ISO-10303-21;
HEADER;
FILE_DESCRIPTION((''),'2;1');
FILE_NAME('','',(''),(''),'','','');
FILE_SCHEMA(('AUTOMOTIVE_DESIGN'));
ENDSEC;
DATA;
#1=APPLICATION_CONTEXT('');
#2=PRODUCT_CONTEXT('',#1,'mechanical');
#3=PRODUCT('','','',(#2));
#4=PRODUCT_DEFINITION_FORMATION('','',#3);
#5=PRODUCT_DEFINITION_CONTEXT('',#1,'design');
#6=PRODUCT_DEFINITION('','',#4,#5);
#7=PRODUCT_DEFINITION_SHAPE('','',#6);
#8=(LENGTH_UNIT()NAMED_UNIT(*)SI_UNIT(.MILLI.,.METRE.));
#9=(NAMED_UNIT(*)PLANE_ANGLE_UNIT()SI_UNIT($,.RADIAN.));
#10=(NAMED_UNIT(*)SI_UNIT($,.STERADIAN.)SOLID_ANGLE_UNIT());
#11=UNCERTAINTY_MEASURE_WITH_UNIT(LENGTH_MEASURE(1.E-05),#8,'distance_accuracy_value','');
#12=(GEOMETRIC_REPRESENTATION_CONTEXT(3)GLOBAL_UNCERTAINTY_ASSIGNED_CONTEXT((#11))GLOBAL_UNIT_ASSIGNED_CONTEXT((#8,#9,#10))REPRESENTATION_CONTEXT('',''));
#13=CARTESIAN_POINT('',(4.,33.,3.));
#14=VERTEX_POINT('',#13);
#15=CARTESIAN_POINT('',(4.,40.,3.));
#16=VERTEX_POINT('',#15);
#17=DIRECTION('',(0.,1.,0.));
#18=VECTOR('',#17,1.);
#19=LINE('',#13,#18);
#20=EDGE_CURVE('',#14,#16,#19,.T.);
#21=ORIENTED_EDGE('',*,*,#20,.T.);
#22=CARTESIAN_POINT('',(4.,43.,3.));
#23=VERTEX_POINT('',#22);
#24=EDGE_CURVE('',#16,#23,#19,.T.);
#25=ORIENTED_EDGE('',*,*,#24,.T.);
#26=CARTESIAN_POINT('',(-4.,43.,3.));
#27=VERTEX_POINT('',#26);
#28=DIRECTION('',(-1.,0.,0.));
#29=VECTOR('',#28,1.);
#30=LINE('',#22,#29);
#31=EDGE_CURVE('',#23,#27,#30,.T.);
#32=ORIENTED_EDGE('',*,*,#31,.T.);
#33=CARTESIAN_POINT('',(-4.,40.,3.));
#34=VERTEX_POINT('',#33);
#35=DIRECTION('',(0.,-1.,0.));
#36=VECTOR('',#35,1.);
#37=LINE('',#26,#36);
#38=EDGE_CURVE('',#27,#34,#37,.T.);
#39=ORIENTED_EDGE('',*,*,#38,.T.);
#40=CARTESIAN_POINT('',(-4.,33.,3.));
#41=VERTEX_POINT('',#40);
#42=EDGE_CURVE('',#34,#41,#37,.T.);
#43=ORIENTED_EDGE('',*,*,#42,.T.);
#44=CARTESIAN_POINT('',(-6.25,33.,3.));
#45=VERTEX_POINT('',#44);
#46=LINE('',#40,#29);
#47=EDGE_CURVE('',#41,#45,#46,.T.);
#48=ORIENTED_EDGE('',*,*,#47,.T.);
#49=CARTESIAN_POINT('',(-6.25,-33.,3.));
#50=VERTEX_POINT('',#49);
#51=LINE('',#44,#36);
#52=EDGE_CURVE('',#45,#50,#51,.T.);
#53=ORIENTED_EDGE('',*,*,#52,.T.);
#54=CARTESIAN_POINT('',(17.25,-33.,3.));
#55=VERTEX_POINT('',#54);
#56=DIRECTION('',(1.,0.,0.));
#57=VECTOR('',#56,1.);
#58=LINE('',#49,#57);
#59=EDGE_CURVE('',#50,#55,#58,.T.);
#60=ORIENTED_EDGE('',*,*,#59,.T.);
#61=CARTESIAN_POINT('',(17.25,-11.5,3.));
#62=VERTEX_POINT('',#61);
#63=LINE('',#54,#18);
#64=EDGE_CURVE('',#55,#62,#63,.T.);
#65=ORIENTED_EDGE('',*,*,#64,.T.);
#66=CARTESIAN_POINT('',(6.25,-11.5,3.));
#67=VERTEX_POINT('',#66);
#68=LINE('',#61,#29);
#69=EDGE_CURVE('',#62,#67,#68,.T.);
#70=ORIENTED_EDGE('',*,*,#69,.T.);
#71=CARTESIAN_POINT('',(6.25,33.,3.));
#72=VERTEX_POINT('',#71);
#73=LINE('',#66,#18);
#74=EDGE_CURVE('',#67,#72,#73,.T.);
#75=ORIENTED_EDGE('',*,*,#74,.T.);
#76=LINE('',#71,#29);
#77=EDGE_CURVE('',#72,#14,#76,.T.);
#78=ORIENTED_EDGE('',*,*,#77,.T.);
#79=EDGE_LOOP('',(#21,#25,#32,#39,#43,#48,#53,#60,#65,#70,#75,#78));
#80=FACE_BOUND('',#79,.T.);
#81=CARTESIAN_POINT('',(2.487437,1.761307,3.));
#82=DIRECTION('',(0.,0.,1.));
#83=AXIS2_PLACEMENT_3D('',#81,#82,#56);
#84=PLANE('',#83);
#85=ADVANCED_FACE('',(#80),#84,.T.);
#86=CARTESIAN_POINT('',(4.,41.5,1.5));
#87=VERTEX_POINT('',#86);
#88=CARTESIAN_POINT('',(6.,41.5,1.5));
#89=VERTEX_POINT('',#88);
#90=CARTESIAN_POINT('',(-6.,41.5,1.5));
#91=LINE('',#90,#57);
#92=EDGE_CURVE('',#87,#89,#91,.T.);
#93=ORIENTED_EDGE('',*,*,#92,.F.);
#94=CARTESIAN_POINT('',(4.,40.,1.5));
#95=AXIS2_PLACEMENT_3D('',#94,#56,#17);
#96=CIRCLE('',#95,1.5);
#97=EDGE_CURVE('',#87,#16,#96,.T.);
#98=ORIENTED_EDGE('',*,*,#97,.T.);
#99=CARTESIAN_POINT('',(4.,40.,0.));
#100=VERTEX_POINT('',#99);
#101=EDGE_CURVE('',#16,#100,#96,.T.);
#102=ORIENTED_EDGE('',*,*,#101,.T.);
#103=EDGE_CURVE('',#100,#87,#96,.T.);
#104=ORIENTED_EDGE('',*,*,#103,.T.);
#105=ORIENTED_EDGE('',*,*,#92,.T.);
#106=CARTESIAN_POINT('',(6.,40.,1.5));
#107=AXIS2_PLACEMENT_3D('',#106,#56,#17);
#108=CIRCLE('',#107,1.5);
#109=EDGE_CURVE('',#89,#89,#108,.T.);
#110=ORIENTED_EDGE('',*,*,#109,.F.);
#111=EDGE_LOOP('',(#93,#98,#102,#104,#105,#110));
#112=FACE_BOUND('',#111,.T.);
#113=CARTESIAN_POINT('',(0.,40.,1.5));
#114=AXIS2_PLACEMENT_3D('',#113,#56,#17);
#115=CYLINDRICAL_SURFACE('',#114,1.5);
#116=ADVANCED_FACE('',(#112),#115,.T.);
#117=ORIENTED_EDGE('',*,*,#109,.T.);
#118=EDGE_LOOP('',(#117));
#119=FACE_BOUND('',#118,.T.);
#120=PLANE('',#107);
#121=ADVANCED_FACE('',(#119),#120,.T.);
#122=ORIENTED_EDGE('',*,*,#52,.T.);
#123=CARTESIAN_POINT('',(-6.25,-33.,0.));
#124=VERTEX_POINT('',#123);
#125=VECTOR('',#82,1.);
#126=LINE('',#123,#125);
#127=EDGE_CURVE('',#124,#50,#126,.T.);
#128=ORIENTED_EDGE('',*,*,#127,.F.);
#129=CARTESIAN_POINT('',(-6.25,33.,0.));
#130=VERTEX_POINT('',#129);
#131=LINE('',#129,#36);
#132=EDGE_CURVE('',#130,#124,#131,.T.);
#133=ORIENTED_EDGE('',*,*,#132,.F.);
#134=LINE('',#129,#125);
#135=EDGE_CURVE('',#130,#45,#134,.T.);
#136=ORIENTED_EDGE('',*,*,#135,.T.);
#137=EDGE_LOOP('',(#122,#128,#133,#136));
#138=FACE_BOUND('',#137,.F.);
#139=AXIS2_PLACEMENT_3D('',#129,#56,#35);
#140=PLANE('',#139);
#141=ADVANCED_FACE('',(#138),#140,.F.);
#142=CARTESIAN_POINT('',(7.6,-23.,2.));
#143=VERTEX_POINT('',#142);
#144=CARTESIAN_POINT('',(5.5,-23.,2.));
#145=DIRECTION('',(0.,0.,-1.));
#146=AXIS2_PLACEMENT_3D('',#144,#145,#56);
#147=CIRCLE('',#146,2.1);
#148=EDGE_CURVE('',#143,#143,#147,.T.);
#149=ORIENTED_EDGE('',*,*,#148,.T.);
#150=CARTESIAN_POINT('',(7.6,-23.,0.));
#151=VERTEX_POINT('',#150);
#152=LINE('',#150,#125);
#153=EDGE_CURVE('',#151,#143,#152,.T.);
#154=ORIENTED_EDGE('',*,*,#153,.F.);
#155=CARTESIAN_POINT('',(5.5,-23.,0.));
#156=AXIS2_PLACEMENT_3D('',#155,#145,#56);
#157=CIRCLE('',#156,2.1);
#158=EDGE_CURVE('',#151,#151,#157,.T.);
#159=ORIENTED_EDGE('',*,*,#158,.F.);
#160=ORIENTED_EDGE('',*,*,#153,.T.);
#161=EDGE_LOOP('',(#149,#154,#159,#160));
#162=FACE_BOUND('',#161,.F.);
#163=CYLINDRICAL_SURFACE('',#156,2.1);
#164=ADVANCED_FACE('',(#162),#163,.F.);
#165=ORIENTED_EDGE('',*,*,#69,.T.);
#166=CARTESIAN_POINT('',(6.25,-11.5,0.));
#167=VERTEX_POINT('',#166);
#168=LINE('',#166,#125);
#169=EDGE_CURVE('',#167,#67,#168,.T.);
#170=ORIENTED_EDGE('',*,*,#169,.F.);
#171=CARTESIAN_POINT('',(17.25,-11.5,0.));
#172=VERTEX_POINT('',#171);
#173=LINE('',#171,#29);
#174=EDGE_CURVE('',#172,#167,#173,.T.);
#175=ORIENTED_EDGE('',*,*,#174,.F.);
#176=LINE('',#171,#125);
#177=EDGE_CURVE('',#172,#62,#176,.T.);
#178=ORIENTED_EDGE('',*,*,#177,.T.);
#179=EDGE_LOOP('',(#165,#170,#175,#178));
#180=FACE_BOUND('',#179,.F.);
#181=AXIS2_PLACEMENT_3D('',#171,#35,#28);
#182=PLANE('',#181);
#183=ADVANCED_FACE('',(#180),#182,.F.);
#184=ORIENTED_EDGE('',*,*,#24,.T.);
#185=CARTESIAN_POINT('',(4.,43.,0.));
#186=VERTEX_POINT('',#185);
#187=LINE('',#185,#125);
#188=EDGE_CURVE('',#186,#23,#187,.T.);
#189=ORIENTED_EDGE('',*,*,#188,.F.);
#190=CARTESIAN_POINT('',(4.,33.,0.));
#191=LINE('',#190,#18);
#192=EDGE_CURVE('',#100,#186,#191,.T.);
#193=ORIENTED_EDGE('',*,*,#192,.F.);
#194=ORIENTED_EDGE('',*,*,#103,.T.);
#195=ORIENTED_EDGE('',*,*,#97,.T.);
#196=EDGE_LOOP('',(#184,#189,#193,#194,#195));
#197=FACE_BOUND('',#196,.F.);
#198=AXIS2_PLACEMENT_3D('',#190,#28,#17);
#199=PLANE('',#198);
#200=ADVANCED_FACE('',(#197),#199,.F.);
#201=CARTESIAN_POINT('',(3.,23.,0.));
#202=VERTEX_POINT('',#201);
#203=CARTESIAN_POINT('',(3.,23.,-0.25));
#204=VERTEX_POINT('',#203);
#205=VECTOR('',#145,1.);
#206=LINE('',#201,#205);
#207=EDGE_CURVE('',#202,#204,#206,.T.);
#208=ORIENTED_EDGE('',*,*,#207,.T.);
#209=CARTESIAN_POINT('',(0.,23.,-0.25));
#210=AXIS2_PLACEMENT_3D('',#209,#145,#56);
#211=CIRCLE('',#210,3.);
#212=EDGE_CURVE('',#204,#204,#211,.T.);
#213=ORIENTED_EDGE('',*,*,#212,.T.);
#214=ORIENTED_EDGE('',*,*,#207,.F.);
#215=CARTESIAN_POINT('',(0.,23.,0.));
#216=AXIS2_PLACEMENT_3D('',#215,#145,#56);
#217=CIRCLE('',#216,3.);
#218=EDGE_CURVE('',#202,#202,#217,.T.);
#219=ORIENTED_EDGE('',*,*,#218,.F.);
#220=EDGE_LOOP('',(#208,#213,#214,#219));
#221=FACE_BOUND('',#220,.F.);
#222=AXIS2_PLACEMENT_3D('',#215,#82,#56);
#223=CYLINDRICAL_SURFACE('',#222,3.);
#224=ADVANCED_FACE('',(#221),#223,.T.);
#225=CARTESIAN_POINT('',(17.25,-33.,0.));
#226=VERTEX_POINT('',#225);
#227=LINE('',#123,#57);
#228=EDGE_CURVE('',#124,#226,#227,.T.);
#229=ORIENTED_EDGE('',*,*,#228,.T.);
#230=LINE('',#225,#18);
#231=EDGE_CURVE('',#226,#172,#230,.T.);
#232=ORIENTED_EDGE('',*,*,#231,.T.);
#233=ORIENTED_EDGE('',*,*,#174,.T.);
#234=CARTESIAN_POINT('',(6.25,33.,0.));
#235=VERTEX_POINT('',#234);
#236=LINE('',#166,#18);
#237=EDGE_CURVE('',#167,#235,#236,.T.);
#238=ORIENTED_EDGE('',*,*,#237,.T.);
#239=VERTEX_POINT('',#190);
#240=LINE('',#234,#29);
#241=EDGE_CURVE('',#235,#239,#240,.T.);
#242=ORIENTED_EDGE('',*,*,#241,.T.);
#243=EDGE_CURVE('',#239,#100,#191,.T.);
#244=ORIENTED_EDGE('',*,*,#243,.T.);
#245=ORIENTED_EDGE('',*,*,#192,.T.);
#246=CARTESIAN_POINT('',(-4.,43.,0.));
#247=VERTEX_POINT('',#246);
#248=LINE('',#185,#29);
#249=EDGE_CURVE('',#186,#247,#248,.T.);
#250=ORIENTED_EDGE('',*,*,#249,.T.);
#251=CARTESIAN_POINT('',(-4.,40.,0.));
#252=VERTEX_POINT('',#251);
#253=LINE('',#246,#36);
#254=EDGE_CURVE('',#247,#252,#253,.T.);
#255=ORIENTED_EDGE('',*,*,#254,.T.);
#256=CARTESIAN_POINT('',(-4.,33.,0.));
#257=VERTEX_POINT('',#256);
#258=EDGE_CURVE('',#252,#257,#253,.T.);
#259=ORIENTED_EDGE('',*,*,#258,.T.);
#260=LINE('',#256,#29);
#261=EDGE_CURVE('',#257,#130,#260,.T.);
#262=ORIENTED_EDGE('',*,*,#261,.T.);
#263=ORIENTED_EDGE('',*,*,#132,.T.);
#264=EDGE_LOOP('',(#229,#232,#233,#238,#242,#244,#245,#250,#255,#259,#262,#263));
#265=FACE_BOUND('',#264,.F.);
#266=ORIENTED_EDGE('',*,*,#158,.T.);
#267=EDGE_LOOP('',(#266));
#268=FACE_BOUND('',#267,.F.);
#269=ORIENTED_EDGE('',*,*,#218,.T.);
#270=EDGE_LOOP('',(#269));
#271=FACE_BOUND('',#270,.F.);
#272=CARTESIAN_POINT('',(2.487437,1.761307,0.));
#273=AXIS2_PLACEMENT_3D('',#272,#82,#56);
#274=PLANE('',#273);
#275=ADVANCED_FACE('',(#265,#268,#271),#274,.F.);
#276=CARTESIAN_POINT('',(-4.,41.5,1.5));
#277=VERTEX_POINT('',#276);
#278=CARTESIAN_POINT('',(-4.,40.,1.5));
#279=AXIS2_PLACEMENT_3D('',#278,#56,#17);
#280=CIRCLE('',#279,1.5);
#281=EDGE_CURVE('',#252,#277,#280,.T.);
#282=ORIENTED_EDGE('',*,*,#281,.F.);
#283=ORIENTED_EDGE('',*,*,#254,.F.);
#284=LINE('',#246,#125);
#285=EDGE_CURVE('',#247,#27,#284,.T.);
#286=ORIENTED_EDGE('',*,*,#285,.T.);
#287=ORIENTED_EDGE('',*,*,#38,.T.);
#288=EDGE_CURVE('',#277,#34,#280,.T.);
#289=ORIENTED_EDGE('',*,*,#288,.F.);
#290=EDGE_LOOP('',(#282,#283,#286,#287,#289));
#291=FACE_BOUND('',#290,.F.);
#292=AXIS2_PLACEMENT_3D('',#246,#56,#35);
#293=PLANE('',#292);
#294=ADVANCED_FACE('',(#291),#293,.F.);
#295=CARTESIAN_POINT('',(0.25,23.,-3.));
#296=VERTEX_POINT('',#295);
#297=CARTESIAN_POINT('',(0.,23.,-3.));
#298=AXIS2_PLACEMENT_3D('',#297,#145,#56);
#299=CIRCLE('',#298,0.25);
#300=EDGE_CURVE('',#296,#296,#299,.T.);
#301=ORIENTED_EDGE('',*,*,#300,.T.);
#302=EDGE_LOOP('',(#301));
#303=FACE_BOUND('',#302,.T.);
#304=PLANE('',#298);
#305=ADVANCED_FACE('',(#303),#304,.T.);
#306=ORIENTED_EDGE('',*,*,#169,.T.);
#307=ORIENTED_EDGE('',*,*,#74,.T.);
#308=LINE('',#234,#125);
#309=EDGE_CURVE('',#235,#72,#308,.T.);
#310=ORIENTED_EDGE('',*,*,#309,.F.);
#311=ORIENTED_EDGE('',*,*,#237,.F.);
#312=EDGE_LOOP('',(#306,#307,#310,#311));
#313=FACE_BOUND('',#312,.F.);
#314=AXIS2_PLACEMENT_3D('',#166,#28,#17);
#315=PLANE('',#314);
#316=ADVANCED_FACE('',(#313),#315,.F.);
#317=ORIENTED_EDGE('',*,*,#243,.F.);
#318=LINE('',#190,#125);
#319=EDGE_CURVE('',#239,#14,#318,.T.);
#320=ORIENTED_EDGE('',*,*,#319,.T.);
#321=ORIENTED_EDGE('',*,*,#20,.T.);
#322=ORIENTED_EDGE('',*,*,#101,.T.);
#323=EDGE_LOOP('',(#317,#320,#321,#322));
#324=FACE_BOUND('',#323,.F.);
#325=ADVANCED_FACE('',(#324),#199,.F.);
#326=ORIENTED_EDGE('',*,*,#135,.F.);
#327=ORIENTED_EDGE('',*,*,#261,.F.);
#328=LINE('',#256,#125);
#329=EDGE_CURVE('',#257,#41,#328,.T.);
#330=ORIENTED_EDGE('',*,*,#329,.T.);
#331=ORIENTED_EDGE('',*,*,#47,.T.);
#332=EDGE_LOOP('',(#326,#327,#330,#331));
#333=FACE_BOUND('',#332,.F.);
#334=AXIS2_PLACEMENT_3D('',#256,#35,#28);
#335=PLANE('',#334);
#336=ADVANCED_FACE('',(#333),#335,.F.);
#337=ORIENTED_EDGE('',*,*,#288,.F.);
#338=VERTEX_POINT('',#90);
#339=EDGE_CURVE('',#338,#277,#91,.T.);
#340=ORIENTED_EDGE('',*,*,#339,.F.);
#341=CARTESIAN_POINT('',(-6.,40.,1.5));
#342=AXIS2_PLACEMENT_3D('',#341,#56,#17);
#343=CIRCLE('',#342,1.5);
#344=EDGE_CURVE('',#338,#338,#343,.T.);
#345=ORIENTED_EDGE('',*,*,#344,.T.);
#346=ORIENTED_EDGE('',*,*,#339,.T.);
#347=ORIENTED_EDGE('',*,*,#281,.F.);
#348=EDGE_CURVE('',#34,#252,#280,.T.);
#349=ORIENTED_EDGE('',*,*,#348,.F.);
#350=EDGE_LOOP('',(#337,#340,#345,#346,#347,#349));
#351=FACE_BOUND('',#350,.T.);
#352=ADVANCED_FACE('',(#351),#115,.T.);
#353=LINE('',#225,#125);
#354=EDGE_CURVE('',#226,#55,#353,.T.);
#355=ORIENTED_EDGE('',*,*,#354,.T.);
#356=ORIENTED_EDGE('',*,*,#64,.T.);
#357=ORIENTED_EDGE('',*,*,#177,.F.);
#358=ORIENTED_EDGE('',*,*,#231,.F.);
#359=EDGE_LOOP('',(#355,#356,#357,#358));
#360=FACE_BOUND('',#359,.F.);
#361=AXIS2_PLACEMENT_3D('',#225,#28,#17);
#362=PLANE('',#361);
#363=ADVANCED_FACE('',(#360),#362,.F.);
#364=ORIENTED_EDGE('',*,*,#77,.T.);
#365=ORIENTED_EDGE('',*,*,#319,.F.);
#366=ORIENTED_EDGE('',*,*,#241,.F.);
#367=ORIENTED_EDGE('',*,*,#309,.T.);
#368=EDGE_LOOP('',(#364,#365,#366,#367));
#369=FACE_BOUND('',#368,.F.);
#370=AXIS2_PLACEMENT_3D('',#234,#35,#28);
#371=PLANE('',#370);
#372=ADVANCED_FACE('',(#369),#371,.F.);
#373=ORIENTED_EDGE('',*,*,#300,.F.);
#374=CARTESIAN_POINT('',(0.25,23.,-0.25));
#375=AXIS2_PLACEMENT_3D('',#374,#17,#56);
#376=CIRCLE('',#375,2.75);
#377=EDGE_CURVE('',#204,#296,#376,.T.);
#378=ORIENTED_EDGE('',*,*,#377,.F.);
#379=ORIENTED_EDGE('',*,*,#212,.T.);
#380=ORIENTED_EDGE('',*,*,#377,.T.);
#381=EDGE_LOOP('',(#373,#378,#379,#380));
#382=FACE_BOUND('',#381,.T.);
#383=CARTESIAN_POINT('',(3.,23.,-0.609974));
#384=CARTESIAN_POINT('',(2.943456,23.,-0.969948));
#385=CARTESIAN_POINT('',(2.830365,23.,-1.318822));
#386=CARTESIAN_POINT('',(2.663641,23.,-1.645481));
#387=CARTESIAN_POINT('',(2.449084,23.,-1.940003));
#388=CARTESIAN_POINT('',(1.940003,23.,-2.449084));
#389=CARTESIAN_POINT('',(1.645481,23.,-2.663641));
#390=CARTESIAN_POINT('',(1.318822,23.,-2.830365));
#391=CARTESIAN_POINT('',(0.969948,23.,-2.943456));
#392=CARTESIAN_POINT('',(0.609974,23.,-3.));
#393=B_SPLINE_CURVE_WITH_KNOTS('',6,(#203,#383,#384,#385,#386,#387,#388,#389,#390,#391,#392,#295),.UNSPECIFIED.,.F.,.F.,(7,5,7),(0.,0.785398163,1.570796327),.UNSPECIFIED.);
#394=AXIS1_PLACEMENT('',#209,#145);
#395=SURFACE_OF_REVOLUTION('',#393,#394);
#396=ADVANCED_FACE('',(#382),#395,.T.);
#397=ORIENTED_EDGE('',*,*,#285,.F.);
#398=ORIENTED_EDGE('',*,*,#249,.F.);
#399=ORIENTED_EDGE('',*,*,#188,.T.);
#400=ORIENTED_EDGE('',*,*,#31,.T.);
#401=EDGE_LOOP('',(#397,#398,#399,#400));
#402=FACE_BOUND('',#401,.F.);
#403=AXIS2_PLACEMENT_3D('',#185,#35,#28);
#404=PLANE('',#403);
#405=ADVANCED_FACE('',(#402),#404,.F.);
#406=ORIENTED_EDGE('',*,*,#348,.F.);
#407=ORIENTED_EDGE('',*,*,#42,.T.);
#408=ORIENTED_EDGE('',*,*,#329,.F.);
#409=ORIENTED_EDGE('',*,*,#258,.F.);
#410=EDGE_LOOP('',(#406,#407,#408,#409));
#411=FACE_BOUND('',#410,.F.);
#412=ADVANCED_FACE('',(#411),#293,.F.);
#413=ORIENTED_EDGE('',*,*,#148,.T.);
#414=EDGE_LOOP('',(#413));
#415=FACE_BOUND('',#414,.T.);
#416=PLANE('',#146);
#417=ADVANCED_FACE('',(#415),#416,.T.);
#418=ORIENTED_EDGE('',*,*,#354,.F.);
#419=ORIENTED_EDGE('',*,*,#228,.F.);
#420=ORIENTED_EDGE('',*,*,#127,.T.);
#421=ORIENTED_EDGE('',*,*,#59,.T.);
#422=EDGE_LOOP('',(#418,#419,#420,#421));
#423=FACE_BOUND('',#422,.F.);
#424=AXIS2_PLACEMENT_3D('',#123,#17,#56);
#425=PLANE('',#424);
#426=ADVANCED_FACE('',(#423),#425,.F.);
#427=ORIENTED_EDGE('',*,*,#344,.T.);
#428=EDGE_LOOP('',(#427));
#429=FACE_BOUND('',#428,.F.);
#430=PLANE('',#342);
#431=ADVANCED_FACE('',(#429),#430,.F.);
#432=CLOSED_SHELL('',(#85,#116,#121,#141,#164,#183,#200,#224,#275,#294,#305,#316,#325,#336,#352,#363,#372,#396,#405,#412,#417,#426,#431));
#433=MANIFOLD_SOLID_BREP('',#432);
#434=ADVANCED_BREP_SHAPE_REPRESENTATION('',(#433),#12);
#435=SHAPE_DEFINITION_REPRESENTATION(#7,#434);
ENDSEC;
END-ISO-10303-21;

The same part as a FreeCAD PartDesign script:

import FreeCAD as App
import Part
import Sketcher


def edges_at(feature, points):
    """Names of the edges that pass closest to the given points."""
    edges = feature.Shape.Edges
    near = lambda p: min(range(len(edges)), key=lambda i: edges[i].distToShape(Part.Vertex(*p))[0])
    return sorted({f"Edge{near(p) + 1}" for p in points})


def add_polygon(sketch, points):
    """Adds a closed chain of lines whose ends are joined by coincident constraints."""
    first, n = sketch.GeometryCount, len(points)
    for a, b in zip(points, points[1:] + points[:1]):
        sketch.addGeometry(Part.LineSegment(App.Vector(*a, 0), App.Vector(*b, 0)), False)
    for i in range(n):
        sketch.addConstraint(Sketcher.Constraint("Coincident", first + i, 2, first + (i + 1) % n, 1))

doc = App.newDocument("Part")
body = doc.addObject("PartDesign::Body", "Body")

sketch1 = body.newObject("Sketcher::SketchObject", "Sketch")
sketch1.AttachmentSupport = (doc.getObject("XY_Plane"), [""])
sketch1.MapMode = "FlatFace"
add_polygon(sketch1, [(-6.2, 33), (-6.2, -33), (17.2, -33), (17.2, -11.5), (6.2, -11.5), (6.2, 33), (4, 33), (4, 43), (-4, 43), (-4, 33)])
sketch1.addConstraint([
    Sketcher.Constraint("Vertical", 0),
    Sketcher.Constraint("Horizontal", 1),
    Sketcher.Constraint("Vertical", 2),
    Sketcher.Constraint("Horizontal", 3),
    Sketcher.Constraint("Vertical", 4),
    Sketcher.Constraint("Horizontal", 5),
    Sketcher.Constraint("Vertical", 6),
    Sketcher.Constraint("Horizontal", 7),
    Sketcher.Constraint("Vertical", 8),
    Sketcher.Constraint("Horizontal", 9),
    Sketcher.Constraint("Symmetric", 0, 2, 4, 2, -1, 1),
    Sketcher.Constraint("Symmetric", 5, 2, 8, 2, -2),
    Sketcher.Constraint("DistanceX", 3, 2, 3, 1, 11.0),
    Sketcher.Constraint("DistanceX", 7, 2, 7, 1, 8.0),
    Sketcher.Constraint("DistanceY", 0, 2, 0, 1, 66.0),
    Sketcher.Constraint("DistanceY", 6, 1, 6, 2, 10.0),
    Sketcher.Constraint("DistanceX", 1, 1, 1, 2, 23.5),
    Sketcher.Constraint("DistanceY", 2, 1, 2, 2, 21.5),
])
pad1 = body.newObject("PartDesign::Pad", "Pad")
pad1.Profile = sketch1
pad1.Length = 3

sketch2 = body.newObject("Sketcher::SketchObject", "Sketch001")
sketch2.AttachmentSupport = (doc.getObject("YZ_Plane"), [""])
sketch2.MapMode = "FlatFace"
sketch2.addGeometry(Part.Circle(App.Vector(40, 1.5, 0), App.Vector(0, 0, 1), 1.5), False)
sketch2.addConstraint([
    Sketcher.Constraint("Diameter", 0, 3.0),
    Sketcher.Constraint("DistanceX", -1, 1, 0, 3, 40.0),
    Sketcher.Constraint("DistanceY", -1, 1, 0, 3, 1.5),
])
pad2 = body.newObject("PartDesign::Pad", "Pad001")
pad2.Profile = sketch2
pad2.Length = 12
pad2.Midplane = True

sketch3 = body.newObject("Sketcher::SketchObject", "Sketch002")
sketch3.AttachmentSupport = (doc.getObject("XY_Plane"), [""])
sketch3.MapMode = "FlatFace"
sketch3.addGeometry(Part.Circle(App.Vector(5.5, -23, 0), App.Vector(0, 0, 1), 2.1), False)
sketch3.addConstraint([
    Sketcher.Constraint("Diameter", 0, 4.2),
    Sketcher.Constraint("DistanceY", 0, 3, -1, 1, 23.0),
    Sketcher.Constraint("DistanceX", -1, 1, 0, 3, 5.5),
])
pocket1 = body.newObject("PartDesign::Pocket", "Pocket")
pocket1.Profile = sketch3
pocket1.Length = 2
pocket1.Reversed = True

sketch4 = body.newObject("Sketcher::SketchObject", "Sketch003")
sketch4.AttachmentSupport = (doc.getObject("XY_Plane"), [""])
sketch4.MapMode = "FlatFace"
sketch4.addGeometry(Part.Circle(App.Vector(0, 23, 0), App.Vector(0, 0, 1), 3), False)
sketch4.addConstraint([
    Sketcher.Constraint("PointOnObject", 0, 3, -2),
    Sketcher.Constraint("Diameter", 0, 6.0),
    Sketcher.Constraint("DistanceY", -1, 1, 0, 3, 23.0),
])
pad3 = body.newObject("PartDesign::Pad", "Pad002")
pad3.Profile = sketch4
pad3.Length = 3
pad3.Reversed = True
doc.recompute()

fillet = body.newObject("PartDesign::Fillet", "Fillet")
fillet.Base = (pad3, edges_at(pad3, [(-3, 23, -3)]))
fillet.Radius = 2.75

doc.recompute()
